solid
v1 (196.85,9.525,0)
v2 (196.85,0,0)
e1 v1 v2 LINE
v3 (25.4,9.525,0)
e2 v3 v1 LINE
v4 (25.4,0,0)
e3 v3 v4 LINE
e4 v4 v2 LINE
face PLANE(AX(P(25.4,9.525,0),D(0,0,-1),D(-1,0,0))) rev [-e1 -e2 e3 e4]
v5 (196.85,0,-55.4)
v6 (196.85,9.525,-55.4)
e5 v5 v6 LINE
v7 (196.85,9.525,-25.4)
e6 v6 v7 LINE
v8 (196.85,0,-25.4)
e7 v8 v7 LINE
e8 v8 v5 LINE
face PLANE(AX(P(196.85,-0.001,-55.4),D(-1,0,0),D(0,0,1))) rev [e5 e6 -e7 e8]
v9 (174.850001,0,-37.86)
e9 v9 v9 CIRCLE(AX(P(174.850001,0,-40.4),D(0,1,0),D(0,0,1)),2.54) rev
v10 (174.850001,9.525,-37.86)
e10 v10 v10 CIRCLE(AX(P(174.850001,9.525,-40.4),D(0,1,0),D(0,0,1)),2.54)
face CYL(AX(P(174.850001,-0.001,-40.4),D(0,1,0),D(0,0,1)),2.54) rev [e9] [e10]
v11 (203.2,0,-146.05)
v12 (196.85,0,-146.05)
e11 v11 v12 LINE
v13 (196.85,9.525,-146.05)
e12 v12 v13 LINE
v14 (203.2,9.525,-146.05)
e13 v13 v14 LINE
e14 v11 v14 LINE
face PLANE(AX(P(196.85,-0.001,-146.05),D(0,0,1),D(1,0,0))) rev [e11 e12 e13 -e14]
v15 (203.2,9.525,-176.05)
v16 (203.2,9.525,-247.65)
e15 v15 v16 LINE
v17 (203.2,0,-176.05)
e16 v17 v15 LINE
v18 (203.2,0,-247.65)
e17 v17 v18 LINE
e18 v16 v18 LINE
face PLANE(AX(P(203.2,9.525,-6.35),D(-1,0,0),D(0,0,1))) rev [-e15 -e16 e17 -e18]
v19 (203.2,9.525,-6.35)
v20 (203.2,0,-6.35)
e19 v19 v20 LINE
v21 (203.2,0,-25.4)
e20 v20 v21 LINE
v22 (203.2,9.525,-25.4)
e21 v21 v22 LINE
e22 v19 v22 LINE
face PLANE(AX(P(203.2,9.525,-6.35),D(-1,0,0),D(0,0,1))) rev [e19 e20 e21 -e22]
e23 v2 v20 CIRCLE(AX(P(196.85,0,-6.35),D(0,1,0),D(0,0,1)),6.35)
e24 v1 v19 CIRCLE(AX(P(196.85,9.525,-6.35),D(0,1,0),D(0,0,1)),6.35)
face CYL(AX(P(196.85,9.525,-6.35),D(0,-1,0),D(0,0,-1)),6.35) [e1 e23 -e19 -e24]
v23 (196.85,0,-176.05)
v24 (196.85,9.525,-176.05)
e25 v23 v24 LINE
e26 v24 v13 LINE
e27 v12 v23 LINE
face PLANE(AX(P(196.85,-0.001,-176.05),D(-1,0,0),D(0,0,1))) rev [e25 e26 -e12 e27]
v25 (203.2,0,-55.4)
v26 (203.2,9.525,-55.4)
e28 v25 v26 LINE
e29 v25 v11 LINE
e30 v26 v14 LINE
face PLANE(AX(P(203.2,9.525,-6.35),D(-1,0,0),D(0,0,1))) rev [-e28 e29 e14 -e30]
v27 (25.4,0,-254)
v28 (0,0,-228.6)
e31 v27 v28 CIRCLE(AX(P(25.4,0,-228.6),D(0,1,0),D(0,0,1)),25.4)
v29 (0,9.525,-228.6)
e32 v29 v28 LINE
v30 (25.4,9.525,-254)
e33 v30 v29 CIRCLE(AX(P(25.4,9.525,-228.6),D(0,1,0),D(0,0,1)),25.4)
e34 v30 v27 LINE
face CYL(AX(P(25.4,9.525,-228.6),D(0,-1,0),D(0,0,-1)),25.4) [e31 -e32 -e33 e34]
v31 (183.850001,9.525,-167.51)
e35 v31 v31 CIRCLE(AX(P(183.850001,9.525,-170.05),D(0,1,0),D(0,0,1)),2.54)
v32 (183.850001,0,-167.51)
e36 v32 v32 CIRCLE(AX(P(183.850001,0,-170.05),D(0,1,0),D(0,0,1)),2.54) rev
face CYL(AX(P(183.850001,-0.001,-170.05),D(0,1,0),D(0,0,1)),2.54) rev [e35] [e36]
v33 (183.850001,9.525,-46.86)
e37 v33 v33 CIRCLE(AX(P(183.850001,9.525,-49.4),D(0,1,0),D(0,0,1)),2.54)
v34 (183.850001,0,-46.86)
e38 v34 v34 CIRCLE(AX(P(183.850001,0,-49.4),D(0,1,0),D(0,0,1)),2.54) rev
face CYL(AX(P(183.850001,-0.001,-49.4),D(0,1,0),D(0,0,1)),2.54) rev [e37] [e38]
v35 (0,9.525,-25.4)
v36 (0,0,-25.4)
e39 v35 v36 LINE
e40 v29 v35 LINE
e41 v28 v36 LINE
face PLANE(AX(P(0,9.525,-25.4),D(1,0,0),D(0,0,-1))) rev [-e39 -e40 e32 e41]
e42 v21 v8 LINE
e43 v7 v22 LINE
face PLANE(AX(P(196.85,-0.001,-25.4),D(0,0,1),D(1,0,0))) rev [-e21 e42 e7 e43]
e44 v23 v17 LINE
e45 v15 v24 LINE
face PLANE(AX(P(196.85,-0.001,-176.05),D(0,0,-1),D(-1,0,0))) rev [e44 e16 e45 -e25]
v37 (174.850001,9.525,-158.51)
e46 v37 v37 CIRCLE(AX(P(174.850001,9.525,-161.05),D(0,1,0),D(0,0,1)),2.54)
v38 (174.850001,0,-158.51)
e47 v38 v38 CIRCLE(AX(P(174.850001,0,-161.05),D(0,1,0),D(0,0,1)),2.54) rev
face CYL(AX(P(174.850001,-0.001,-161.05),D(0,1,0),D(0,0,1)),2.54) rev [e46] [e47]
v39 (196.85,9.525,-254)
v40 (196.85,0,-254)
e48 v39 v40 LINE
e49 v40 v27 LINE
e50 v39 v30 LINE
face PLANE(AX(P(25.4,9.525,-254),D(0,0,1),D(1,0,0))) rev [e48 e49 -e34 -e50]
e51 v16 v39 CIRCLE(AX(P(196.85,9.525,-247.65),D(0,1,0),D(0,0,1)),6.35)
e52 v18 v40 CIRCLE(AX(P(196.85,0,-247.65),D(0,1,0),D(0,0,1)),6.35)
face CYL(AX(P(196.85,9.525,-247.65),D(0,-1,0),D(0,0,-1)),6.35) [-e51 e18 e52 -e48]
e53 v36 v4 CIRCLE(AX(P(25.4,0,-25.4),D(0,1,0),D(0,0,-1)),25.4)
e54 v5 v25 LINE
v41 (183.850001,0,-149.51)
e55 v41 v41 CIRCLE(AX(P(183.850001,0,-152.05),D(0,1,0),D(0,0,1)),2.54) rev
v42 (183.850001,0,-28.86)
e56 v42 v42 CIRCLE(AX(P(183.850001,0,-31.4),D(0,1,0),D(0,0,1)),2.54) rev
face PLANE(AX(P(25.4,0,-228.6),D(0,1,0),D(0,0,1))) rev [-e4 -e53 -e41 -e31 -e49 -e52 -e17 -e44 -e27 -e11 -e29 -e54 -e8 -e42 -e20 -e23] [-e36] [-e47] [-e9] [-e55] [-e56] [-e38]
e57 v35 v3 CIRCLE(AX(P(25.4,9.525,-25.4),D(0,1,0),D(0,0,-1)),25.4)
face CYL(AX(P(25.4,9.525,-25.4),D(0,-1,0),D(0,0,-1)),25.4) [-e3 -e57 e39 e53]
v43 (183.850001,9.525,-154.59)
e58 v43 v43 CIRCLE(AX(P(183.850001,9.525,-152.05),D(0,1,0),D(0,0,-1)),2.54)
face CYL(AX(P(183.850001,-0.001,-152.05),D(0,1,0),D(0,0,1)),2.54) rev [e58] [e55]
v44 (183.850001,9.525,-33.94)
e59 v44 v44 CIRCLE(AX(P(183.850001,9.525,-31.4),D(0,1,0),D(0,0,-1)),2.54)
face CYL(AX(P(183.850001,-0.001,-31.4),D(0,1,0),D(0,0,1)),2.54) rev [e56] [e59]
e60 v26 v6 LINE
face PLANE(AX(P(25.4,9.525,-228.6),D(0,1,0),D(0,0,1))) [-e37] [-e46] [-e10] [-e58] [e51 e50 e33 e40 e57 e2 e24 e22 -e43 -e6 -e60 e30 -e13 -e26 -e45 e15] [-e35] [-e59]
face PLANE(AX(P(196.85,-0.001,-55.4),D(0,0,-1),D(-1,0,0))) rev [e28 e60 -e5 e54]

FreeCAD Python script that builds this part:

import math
import FreeCAD as App
import Part
import Sketcher
Q = App.Units.Quantity


def add_polygon(sketch, points):
    """Adds a closed chain of lines whose ends are joined by coincident constraints."""
    first, n = sketch.GeometryCount, len(points)
    for a, b in zip(points, points[1:] + points[:1]):
        sketch.addGeometry(Part.LineSegment(App.Vector(*a, 0), App.Vector(*b, 0)), False)
    for i in range(n):
        sketch.addConstraint(Sketcher.Constraint("Coincident", first + i, 2, first + (i + 1) % n, 1))

doc = App.newDocument("Part")
body = doc.addObject("PartDesign::Body", "Body")

# Sketch on XZ plane
sketch1 = body.newObject("Sketcher::SketchObject", "Sketch")
sketch1.AttachmentSupport = (doc.getObject("XZ_Plane"), [""])
sketch1.MapMode = "FlatFace"
sketch1.addGeometry([
    Part.LineSegment(App.Vector(25.4, 0, 0), App.Vector(196.85, 0, 0)),  # 0
    Part.ArcOfCircle(Part.Circle(App.Vector(196.85, -6.35, 0), App.Vector(0, 0, 1), 6.35), math.radians(0), math.radians(90)),  # 1
    Part.LineSegment(App.Vector(203.2, -6.35, 0), App.Vector(203.2, -247.65, 0)),  # 2
    Part.ArcOfCircle(Part.Circle(App.Vector(196.85, -247.65, 0), App.Vector(0, 0, 1), 6.35), math.radians(-90), math.radians(0)),  # 3
    Part.LineSegment(App.Vector(196.85, -254, 0), App.Vector(25.4, -254, 0)),  # 4
    Part.ArcOfCircle(Part.Circle(App.Vector(25.4, -228.6, 0), App.Vector(0, 0, 1), 25.4), math.radians(180), math.radians(270)),  # 5
    Part.LineSegment(App.Vector(0, -228.6, 0), App.Vector(0, -25.4, 0)),  # 6
    Part.ArcOfCircle(Part.Circle(App.Vector(25.4, -25.4, 0), App.Vector(0, 0, 1), 25.4), math.radians(90), math.radians(180)),  # 7
], False)
sketch1.addConstraint([
    Sketcher.Constraint("Tangent", 0, 2, 1, 2),
    Sketcher.Constraint("Tangent", 1, 1, 2, 1),
    Sketcher.Constraint("Tangent", 2, 2, 3, 2),
    Sketcher.Constraint("Tangent", 3, 1, 4, 1),
    Sketcher.Constraint("Tangent", 4, 2, 5, 2),
    Sketcher.Constraint("Tangent", 5, 1, 6, 1),
    Sketcher.Constraint("Tangent", 6, 2, 7, 2),
    Sketcher.Constraint("Tangent", 7, 1, 0, 1),
    Sketcher.Constraint("Horizontal", 0),
    Sketcher.Constraint("Vertical", 2),
    Sketcher.Constraint("Horizontal", 4),
    Sketcher.Constraint("Vertical", 6),
    Sketcher.Constraint("Equal", 1, 3),
    Sketcher.Constraint("Equal", 5, 7),
    Sketcher.Constraint("PointOnObject", 0, 2, -1),
    Sketcher.Constraint("PointOnObject", 5, 1, -2),
    Sketcher.Constraint("Radius", 5, Q("1 in")),
    Sketcher.Constraint("DistanceY", 6, 1, 6, 2, Q("8 in")),
    Sketcher.Constraint("Radius", 1, Q("0.25 in")),
    Sketcher.Constraint("DistanceX", -1, 1, 1, 1, Q("8 in")),
])
pad1 = body.newObject("PartDesign::Pad", "Pad")
pad1.Profile = sketch1
pad1.Length = Q("0.375 in")
pad1.Reversed = True

# Sketch on XZ plane
sketch2 = body.newObject("Sketcher::SketchObject", "Sketch001")
sketch2.AttachmentSupport = (doc.getObject("XZ_Plane"), [""])
sketch2.MapMode = "FlatFace"
sketch2.AttachmentOffset = App.Placement(App.Vector(0, 0, -0.375 * 25.4), App.Rotation())
sketch2.addGeometry(Part.Circle(App.Vector(174.850001, -40.4, 0), App.Vector(0, 0, 1), 2.54), False)
sketch2.addConstraint([
    Sketcher.Constraint("Diameter", 0, Q("0.2 in")),
    Sketcher.Constraint("DistanceX", -1, 1, 0, 3, 174.850001),
    Sketcher.Constraint("DistanceY", 0, 3, -1, 1, 40.4),
])
pocket1 = body.newObject("PartDesign::Pocket", "Pocket")
pocket1.Profile = sketch2
pocket1.Type = "UpToFirst"
pocket1.Reversed = True

# Sketch on XZ plane
sketch3 = body.newObject("Sketcher::SketchObject", "Sketch002")
sketch3.AttachmentSupport = (doc.getObject("XZ_Plane"), [""])
sketch3.MapMode = "FlatFace"
sketch3.AttachmentOffset = App.Placement(App.Vector(0, 0, -0.375 * 25.4), App.Rotation())
sketch3.addGeometry(Part.Circle(App.Vector(183.850001, -49.4, 0), App.Vector(0, 0, 1), 2.54), False)
sketch3.addConstraint([
    Sketcher.Constraint("Diameter", 0, Q("0.2 in")),
    Sketcher.Constraint("DistanceX", -1, 1, 0, 3, 183.850001),
    Sketcher.Constraint("DistanceY", 0, 3, -1, 1, 49.4),
])
pocket2 = body.newObject("PartDesign::Pocket", "Pocket001")
pocket2.Profile = sketch3
pocket2.Type = "UpToFirst"
pocket2.Reversed = True

# Sketch on XZ plane
sketch4 = body.newObject("Sketcher::SketchObject", "Sketch003")
sketch4.AttachmentSupport = (doc.getObject("XZ_Plane"), [""])
sketch4.MapMode = "FlatFace"
sketch4.AttachmentOffset = App.Placement(App.Vector(0, 0, -0.375 * 25.4), App.Rotation())
sketch4.addGeometry(Part.Circle(App.Vector(183.850001, -31.4, 0), App.Vector(0, 0, 1), 2.54), False)
sketch4.addConstraint([
    Sketcher.Constraint("Diameter", 0, Q("0.2 in")),
    Sketcher.Constraint("DistanceX", -1, 1, 0, 3, 183.850001),
    Sketcher.Constraint("DistanceY", 0, 3, -1, 1, 31.4),
])
pocket3 = body.newObject("PartDesign::Pocket", "Pocket002")
pocket3.Profile = sketch4
pocket3.Type = "UpToFirst"
pocket3.Reversed = True

# Sketch on XZ plane
sketch5 = body.newObject("Sketcher::SketchObject", "Sketch004")
sketch5.AttachmentSupport = (doc.getObject("XZ_Plane"), [""])
sketch5.MapMode = "FlatFace"
sketch5.AttachmentOffset = App.Placement(App.Vector(0, 0, -0.375 * 25.4), App.Rotation())
sketch5.addGeometry(Part.Circle(App.Vector(174.850001, -161.05, 0), App.Vector(0, 0, 1), 2.54), False)
sketch5.addConstraint([
    Sketcher.Constraint("Diameter", 0, Q("0.2 in")),
    Sketcher.Constraint("DistanceX", -1, 1, 0, 3, 174.850001),
    Sketcher.Constraint("DistanceY", 0, 3, -1, 1, 161.05),
])
pocket4 = body.newObject("PartDesign::Pocket", "Pocket003")
pocket4.Profile = sketch5
pocket4.Type = "UpToFirst"
pocket4.Reversed = True

# Sketch on XZ plane
sketch6 = body.newObject("Sketcher::SketchObject", "Sketch005")
sketch6.AttachmentSupport = (doc.getObject("XZ_Plane"), [""])
sketch6.MapMode = "FlatFace"
sketch6.AttachmentOffset = App.Placement(App.Vector(0, 0, -0.375 * 25.4), App.Rotation())
sketch6.addGeometry(Part.Circle(App.Vector(183.850001, -170.05, 0), App.Vector(0, 0, 1), 2.54), False)
sketch6.addConstraint([
    Sketcher.Constraint("Diameter", 0, Q("0.2 in")),
    Sketcher.Constraint("DistanceX", -1, 1, 0, 3, 183.850001),
    Sketcher.Constraint("DistanceY", 0, 3, -1, 1, 170.05),
])
pocket5 = body.newObject("PartDesign::Pocket", "Pocket004")
pocket5.Profile = sketch6
pocket5.Type = "UpToFirst"
pocket5.Reversed = True

# Sketch on XZ plane
sketch7 = body.newObject("Sketcher::SketchObject", "Sketch006")
sketch7.AttachmentSupport = (doc.getObject("XZ_Plane"), [""])
sketch7.MapMode = "FlatFace"
sketch7.AttachmentOffset = App.Placement(App.Vector(0, 0, -0.375 * 25.4), App.Rotation())
sketch7.addGeometry(Part.Circle(App.Vector(183.850001, -152.05, 0), App.Vector(0, 0, 1), 2.54), False)
sketch7.addConstraint([
    Sketcher.Constraint("Diameter", 0, Q("0.2 in")),
    Sketcher.Constraint("DistanceX", -1, 1, 0, 3, 183.850001),
    Sketcher.Constraint("DistanceY", 0, 3, -1, 1, 152.05),
])
pocket6 = body.newObject("PartDesign::Pocket", "Pocket005")
pocket6.Profile = sketch7
pocket6.Type = "UpToFirst"
pocket6.Reversed = True

# Sketch on XZ plane
sketch8 = body.newObject("Sketcher::SketchObject", "Sketch007")
sketch8.AttachmentSupport = (doc.getObject("XZ_Plane"), [""])
sketch8.MapMode = "FlatFace"
sketch8.AttachmentOffset = App.Placement(App.Vector(0, 0, -0.375 * 25.4), App.Rotation())
add_polygon(sketch8, [(196.85, -55.4), (196.85, -25.4), (203.2, -25.4), (203.2, -55.4)])  # lines 0-3
sketch8.addConstraint([
    Sketcher.Constraint("Vertical", 0),
    Sketcher.Constraint("Horizontal", 1),
    Sketcher.Constraint("Vertical", 2),
    Sketcher.Constraint("Horizontal", 3),
    Sketcher.Constraint("DistanceY", 0, 2, -1, 1, Q("1 in")),
    Sketcher.Constraint("DistanceX", -1, 1, 1, 2, Q("8 in")),
    Sketcher.Constraint("DistanceX", 1, 1, 1, 2, Q("0.25 in")),
    Sketcher.Constraint("DistanceY", 0, 1, 0, 2, 30.0),
])
pocket7 = body.newObject("PartDesign::Pocket", "Pocket006")
pocket7.Profile = sketch8
pocket7.Type = "UpToFirst"
pocket7.Reversed = True

# Sketch on XZ plane
sketch9 = body.newObject("Sketcher::SketchObject", "Sketch008")
sketch9.AttachmentSupport = (doc.getObject("XZ_Plane"), [""])
sketch9.MapMode = "FlatFace"
sketch9.AttachmentOffset = App.Placement(App.Vector(0, 0, -0.375 * 25.4), App.Rotation())
add_polygon(sketch9, [(196.85, -176.05), (196.85, -146.05), (203.2, -146.05), (203.2, -176.05)])  # lines 0-3
sketch9.addConstraint([
    Sketcher.Constraint("Vertical", 0),
    Sketcher.Constraint("Horizontal", 1),
    Sketcher.Constraint("Vertical", 2),
    Sketcher.Constraint("Horizontal", 3),
    Sketcher.Constraint("DistanceX", -1, 1, 1, 2, Q("8 in")),
    Sketcher.Constraint("DistanceX", 1, 1, 1, 2, Q("0.25 in")),
    Sketcher.Constraint("DistanceY", 0, 2, -1, 1, Q("5.75 in")),
    Sketcher.Constraint("DistanceY", 0, 1, 0, 2, 30.0),
])
pocket8 = body.newObject("PartDesign::Pocket", "Pocket007")
pocket8.Profile = sketch9
pocket8.Type = "UpToFirst"
pocket8.Reversed = True

doc.recompute()
